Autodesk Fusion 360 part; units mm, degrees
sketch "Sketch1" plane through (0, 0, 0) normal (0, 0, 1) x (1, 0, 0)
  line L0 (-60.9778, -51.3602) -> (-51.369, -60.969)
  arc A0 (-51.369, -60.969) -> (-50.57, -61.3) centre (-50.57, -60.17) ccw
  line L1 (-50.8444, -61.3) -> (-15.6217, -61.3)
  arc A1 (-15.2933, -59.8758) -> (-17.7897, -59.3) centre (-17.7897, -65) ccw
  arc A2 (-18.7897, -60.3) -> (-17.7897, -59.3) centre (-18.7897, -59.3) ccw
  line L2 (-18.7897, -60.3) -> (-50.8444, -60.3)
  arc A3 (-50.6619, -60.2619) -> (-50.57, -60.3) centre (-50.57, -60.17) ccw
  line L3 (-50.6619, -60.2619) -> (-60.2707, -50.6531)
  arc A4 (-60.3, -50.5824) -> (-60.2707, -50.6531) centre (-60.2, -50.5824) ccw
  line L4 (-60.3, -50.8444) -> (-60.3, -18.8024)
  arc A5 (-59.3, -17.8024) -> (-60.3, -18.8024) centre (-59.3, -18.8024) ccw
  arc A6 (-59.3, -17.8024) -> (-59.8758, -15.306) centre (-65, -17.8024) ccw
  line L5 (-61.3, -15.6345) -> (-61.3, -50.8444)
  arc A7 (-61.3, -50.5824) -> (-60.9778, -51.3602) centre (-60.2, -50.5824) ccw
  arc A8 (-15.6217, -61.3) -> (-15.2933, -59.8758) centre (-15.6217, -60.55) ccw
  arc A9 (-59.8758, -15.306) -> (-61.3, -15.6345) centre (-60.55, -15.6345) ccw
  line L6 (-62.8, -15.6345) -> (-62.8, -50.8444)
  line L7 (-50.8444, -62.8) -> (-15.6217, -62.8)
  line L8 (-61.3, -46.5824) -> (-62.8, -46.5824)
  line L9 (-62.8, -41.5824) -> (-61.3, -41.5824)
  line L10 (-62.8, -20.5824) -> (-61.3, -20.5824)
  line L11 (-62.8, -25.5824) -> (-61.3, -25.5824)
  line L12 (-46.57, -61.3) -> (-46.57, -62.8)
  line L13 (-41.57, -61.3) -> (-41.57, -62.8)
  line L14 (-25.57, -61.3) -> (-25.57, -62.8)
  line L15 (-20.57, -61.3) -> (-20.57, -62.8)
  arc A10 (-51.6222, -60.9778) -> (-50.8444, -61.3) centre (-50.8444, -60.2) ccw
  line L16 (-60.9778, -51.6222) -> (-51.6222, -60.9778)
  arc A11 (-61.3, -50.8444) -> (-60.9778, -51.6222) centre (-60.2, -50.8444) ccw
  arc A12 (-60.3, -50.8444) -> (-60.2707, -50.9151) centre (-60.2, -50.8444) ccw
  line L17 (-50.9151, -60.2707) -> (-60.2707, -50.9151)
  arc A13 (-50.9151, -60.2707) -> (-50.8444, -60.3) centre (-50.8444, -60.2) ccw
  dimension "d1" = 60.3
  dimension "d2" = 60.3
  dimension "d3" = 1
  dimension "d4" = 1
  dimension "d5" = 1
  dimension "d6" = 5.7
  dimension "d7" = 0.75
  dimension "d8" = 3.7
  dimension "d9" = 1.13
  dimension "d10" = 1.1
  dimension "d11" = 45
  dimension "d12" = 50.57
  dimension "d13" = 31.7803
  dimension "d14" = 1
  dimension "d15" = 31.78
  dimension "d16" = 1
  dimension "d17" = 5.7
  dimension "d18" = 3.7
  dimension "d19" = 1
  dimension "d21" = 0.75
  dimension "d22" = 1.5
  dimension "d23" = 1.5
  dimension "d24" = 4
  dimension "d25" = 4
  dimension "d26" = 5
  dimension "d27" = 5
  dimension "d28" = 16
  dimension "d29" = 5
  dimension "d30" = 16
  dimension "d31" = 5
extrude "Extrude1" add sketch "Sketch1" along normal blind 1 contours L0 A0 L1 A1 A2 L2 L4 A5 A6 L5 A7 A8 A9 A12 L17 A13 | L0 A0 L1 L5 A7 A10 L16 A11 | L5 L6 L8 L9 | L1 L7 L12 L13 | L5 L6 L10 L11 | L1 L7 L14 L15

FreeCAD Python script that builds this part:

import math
import FreeCAD as App
import Part
import Sketcher
from FreeCAD import Vector
Q = App.Units.Quantity

doc = App.newDocument("Part")
body = doc.addObject("PartDesign::Body", "Body")

sketch1 = body.newObject("Sketcher::SketchObject", "Sketch")
sketch1.AttachmentSupport = (doc.getObject("XY_Plane"), [""])
sketch1.MapMode = "FlatFace"
sketch1.addGeometry([
    Part.LineSegment(Vector(-61.3, -46.58, 0), Vector(-61.3, -50.84, 0)),
    Part.ArcOfCircle(Part.Circle(Vector(-60.2, -50.84, 0), Vector(0, 0, 1), 1.1), math.radians(180), math.radians(225)),
    Part.LineSegment(Vector(-60.98, -51.62, 0), Vector(-51.62, -60.98, 0)),
    Part.ArcOfCircle(Part.Circle(Vector(-50.84, -60.2, 0), Vector(0, 0, 1), 1.1), math.radians(-135), math.radians(-90)),
    Part.LineSegment(Vector(-50.84, -61.3, 0), Vector(-46.57, -61.3, 0)),
    Part.LineSegment(Vector(-46.57, -61.3, 0), Vector(-46.57, -62.8, 0)),
    Part.LineSegment(Vector(-46.57, -62.8, 0), Vector(-41.57, -62.8, 0)),
    Part.LineSegment(Vector(-41.57, -62.8, 0), Vector(-41.57, -61.3, 0)),
    Part.LineSegment(Vector(-41.57, -61.3, 0), Vector(-25.57, -61.3, 0)),
    Part.LineSegment(Vector(-25.57, -61.3, 0), Vector(-25.57, -62.8, 0)),
    Part.LineSegment(Vector(-25.57, -62.8, 0), Vector(-20.57, -62.8, 0)),
    Part.LineSegment(Vector(-20.57, -62.8, 0), Vector(-20.57, -61.3, 0)),
    Part.LineSegment(Vector(-20.57, -61.3, 0), Vector(-15.62, -61.3, 0)),
    Part.ArcOfCircle(Part.Circle(Vector(-15.62, -60.55, 0), Vector(0, 0, 1), 0.75), math.radians(-90), math.radians(64)),
    Part.ArcOfCircle(Part.Circle(Vector(-17.79, -65, 0), Vector(0, 0, 1), 5.7), math.radians(64), math.radians(90)),
    Part.ArcOfCircle(Part.Circle(Vector(-18.79, -59.3, 0), Vector(0, 0, 1), 1), math.radians(-90), math.radians(0)),
    Part.LineSegment(Vector(-18.79, -60.3, 0), Vector(-50.84, -60.3, 0)),
    Part.ArcOfCircle(Part.Circle(Vector(-50.84, -60.2, 0), Vector(0, 0, 1), 0.1), math.radians(-135), math.radians(-90)),
    Part.LineSegment(Vector(-50.92, -60.27, 0), Vector(-60.27, -50.92, 0)),
    Part.ArcOfCircle(Part.Circle(Vector(-60.2, -50.84, 0), Vector(0, 0, 1), 0.1), math.radians(180), math.radians(225)),
    Part.LineSegment(Vector(-60.3, -50.84, 0), Vector(-60.3, -18.8, 0)),
    Part.ArcOfCircle(Part.Circle(Vector(-59.3, -18.8, 0), Vector(0, 0, 1), 1), math.radians(90), math.radians(180)),
    Part.ArcOfCircle(Part.Circle(Vector(-65, -17.8, 0), Vector(0, 0, 1), 5.7), math.radians(0), math.radians(26)),
    Part.ArcOfCircle(Part.Circle(Vector(-60.55, -15.63, 0), Vector(0, 0, 1), 0.75), math.radians(26), math.radians(180)),
    Part.LineSegment(Vector(-61.3, -15.63, 0), Vector(-61.3, -20.58, 0)),
    Part.LineSegment(Vector(-61.3, -20.58, 0), Vector(-62.8, -20.58, 0)),
    Part.LineSegment(Vector(-62.8, -20.58, 0), Vector(-62.8, -25.58, 0)),
    Part.LineSegment(Vector(-62.8, -25.58, 0), Vector(-61.3, -25.58, 0)),
    Part.LineSegment(Vector(-61.3, -25.58, 0), Vector(-61.3, -41.58, 0)),
    Part.LineSegment(Vector(-61.3, -41.58, 0), Vector(-62.8, -41.58, 0)),
    Part.LineSegment(Vector(-62.8, -41.58, 0), Vector(-62.8, -46.58, 0)),
    Part.LineSegment(Vector(-62.8, -46.58, 0), Vector(-61.3, -46.58, 0)),
], False)
sketch1.addConstraint([
    Sketcher.Constraint("Tangent", 0, 2, 1, 1),
    Sketcher.Constraint("Tangent", 1, 2, 2, 1),
    Sketcher.Constraint("Tangent", 2, 2, 3, 1),
    Sketcher.Constraint("Tangent", 3, 2, 4, 1),
    Sketcher.Constraint("Coincident", 4, 2, 5, 1),
    Sketcher.Constraint("Coincident", 5, 2, 6, 1),
    Sketcher.Constraint("Coincident", 6, 2, 7, 1),
    Sketcher.Constraint("Coincident", 7, 2, 8, 1),
    Sketcher.Constraint("Coincident", 8, 2, 9, 1),
    Sketcher.Constraint("Coincident", 9, 2, 10, 1),
    Sketcher.Constraint("Coincident", 10, 2, 11, 1),
    Sketcher.Constraint("Coincident", 11, 2, 12, 1),
    Sketcher.Constraint("Tangent", 12, 2, 13, 1),
    Sketcher.Constraint("Tangent", 13, 2, 14, 1),
    Sketcher.Constraint("Coincident", 14, 2, 15, 2),
    Sketcher.Constraint("Tangent", 15, 1, 16, 1),
    Sketcher.Constraint("Tangent", 16, 2, 17, 2),
    Sketcher.Constraint("Tangent", 17, 1, 18, 1),
    Sketcher.Constraint("Tangent", 18, 2, 19, 2),
    Sketcher.Constraint("Tangent", 19, 1, 20, 1),
    Sketcher.Constraint("Tangent", 20, 2, 21, 2),
    Sketcher.Constraint("Coincident", 21, 1, 22, 1),
    Sketcher.Constraint("Tangent", 22, 2, 23, 1),
    Sketcher.Constraint("Tangent", 23, 2, 24, 1),
    Sketcher.Constraint("Coincident", 24, 2, 25, 1),
    Sketcher.Constraint("Coincident", 25, 2, 26, 1),
    Sketcher.Constraint("Coincident", 26, 2, 27, 1),
    Sketcher.Constraint("Coincident", 27, 2, 28, 1),
    Sketcher.Constraint("Coincident", 28, 2, 29, 1),
    Sketcher.Constraint("Coincident", 29, 2, 30, 1),
    Sketcher.Constraint("Coincident", 30, 2, 31, 1),
    Sketcher.Constraint("Coincident", 31, 2, 0, 1),
    Sketcher.Constraint("Vertical", 0),
    Sketcher.Constraint("Horizontal", 4),
    Sketcher.Constraint("Vertical", 5),
    Sketcher.Constraint("Horizontal", 6),
    Sketcher.Constraint("Vertical", 7),
    Sketcher.Constraint("Horizontal", 8),
    Sketcher.Constraint("Vertical", 9),
    Sketcher.Constraint("Horizontal", 10),
    Sketcher.Constraint("Vertical", 11),
    Sketcher.Constraint("Horizontal", 12),
    Sketcher.Constraint("Horizontal", 16),
    Sketcher.Constraint("Vertical", 20),
    Sketcher.Constraint("Vertical", 24),
    Sketcher.Constraint("Horizontal", 25),
    Sketcher.Constraint("Vertical", 26),
    Sketcher.Constraint("Horizontal", 27),
    Sketcher.Constraint("Vertical", 28),
    Sketcher.Constraint("Horizontal", 29),
    Sketcher.Constraint("Vertical", 30),
    Sketcher.Constraint("Horizontal", 31),
    Sketcher.Constraint("Coincident", 17, 3, 3, 3),
    Sketcher.Constraint("Coincident", 19, 3, 1, 3),
    Sketcher.Constraint("Equal", 1, 3),
    Sketcher.Constraint("Equal", 17, 19),
    Sketcher.Constraint("Equal", 15, 21),
    Sketcher.Constraint("Equal", 14, 22),
    Sketcher.Constraint("Equal", 13, 23),
    Sketcher.Constraint("Horizontal", 4, 2, 7, 2),
    Sketcher.Constraint("Horizontal", 6, 2, 9, 2),
    Sketcher.Constraint("Horizontal", 8, 2, 11, 2),
    Sketcher.Constraint("Horizontal", 15, 3, 14, 2),
    Sketcher.Constraint("Horizontal", 22, 3, 21, 1),
    Sketcher.Constraint("Vertical", 0, 2, 23, 2),
    Sketcher.Constraint("Vertical", 24, 2, 27, 2),
    Sketcher.Constraint("Vertical", 26, 2, 29, 2),
    Sketcher.Constraint("Equal", 6, 10),
    Sketcher.Constraint("Equal", 31, 5),
    Sketcher.Constraint("Equal", 10, 26),
    Sketcher.Constraint("Equal", 8, 28),
    Sketcher.Constraint("Equal", 26, 30),
    Sketcher.Constraint("Radius", 15, 1.0),
    Sketcher.Constraint("Radius", 1, 1.1),
    Sketcher.Constraint("Radius", 14, 5.7),
    Sketcher.Constraint("DistanceX", 6, 1, 6, 2, 5.0),
    Sketcher.Constraint("DistanceX", 8, 1, 8, 2, 16.0),
    Sketcher.Constraint("Angle", 2, Q("-45 deg")),
    Sketcher.Constraint("Radius", 13, 0.75),
    Sketcher.Constraint("DistanceX", 25, 2, 25, 1, 1.5),
    Sketcher.Constraint("DistanceX", 15, 3, 14, 3, 1.0),
    Sketcher.Constraint("DistanceY", 11, 2, 15, 1, 1.0),
    Sketcher.Constraint("DistanceX", 20, 2, 21, 1, 1.0),
    Sketcher.Constraint("DistanceY", 15, 1, -1, 1, 60.3),
    Sketcher.Constraint("DistanceX", 19, 1, -1, 1, 60.3),
    Sketcher.Constraint("DistanceY", 0, 2, 0, 1, 4.262),
    Sketcher.Constraint("DistanceY", 20, 1, 20, 2, 32.042),
    Sketcher.Constraint("DistanceX", 4, 2, -1, 1, 46.57),
    Sketcher.Constraint("DistanceX", 4, 1, 4, 2, 4.2744),
    Sketcher.Constraint("DistanceX", 12, 1, 12, 2, 4.9483),
])
pad1 = body.newObject("PartDesign::Pad", "Pad")
pad1.Profile = sketch1
pad1.Length = 1

doc.recompute()
